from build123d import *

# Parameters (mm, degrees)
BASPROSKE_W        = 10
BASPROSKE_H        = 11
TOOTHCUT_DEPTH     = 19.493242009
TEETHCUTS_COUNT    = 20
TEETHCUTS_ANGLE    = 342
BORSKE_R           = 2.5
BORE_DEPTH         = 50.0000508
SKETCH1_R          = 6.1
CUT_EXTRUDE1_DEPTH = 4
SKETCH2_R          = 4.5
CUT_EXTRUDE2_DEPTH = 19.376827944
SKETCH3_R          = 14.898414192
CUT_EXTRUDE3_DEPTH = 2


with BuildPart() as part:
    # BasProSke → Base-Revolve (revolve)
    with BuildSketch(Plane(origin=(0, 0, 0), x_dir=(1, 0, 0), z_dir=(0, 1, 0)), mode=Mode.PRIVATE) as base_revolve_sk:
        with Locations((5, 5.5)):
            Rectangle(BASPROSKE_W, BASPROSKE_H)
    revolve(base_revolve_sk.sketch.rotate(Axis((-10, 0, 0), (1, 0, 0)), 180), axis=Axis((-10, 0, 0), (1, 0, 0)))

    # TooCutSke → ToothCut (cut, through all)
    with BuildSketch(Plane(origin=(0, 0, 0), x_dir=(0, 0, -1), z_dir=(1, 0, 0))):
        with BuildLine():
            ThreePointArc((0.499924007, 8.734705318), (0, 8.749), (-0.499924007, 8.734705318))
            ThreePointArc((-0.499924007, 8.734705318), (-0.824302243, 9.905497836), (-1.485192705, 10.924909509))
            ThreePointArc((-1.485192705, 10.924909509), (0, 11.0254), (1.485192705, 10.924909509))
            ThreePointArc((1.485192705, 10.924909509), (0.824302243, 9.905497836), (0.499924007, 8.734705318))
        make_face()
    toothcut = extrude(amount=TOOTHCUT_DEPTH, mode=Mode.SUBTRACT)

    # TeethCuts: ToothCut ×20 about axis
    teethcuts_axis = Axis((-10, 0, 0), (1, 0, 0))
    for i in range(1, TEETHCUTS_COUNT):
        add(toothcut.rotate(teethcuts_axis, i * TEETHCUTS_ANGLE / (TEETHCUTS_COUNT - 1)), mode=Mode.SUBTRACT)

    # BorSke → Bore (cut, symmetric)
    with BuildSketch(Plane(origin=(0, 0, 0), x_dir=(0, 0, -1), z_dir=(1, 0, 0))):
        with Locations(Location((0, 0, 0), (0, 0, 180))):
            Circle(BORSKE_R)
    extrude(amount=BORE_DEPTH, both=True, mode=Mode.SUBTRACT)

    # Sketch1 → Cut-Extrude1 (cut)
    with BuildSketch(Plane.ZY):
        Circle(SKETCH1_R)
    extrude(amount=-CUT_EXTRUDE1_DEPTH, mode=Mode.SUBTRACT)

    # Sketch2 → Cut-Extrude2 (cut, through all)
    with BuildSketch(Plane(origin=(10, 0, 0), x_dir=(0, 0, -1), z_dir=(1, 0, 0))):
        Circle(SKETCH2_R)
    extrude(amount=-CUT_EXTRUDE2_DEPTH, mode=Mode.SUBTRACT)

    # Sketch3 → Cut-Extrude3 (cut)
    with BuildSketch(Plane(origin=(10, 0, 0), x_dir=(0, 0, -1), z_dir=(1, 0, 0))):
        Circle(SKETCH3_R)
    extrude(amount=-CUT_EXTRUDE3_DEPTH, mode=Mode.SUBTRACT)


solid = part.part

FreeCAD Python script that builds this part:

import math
import FreeCAD as App
import Part
import Sketcher

V = App.Vector
Q = App.Units.Quantity

doc = App.newDocument("Part")
body = doc.addObject("PartDesign::Body", "Body")

sketch1 = doc.addObject("Sketcher::SketchObject", "Sketch")
body.addObject(sketch1)
sketch1.AttachmentSupport = (doc.XZ_Plane, [""])
sketch1.MapMode = "FlatFace"
sketch1.addGeometry(Part.LineSegment(V(0, -11, 0), V(0, 0, 0)), False)
sketch1.addGeometry(Part.LineSegment(V(0, 0, 0), V(10, 0, 0)), False)
sketch1.addGeometry(Part.LineSegment(V(10, 0, 0), V(10, -11, 0)), False)
sketch1.addGeometry(Part.LineSegment(V(10, -11, 0), V(0, -11, 0)), False)
sketch1.addConstraint(Sketcher.Constraint("Coincident", 0, 2, 1, 1))
sketch1.addConstraint(Sketcher.Constraint("Coincident", 1, 2, 2, 1))
sketch1.addConstraint(Sketcher.Constraint("Coincident", 2, 2, 3, 1))
sketch1.addConstraint(Sketcher.Constraint("Coincident", 3, 2, 0, 1))
sketch1.addConstraint(Sketcher.Constraint("Vertical", 0))
sketch1.addConstraint(Sketcher.Constraint("Horizontal", 1))
sketch1.addConstraint(Sketcher.Constraint("Vertical", 2))
sketch1.addConstraint(Sketcher.Constraint("Horizontal", 3))
sketch1.addConstraint(Sketcher.Constraint("Coincident", 0, 2, -1, 1))
sketch1.addConstraint(Sketcher.Constraint("DistanceX", 1, 1, 1, 2, Q("10 mm")))
sketch1.addConstraint(Sketcher.Constraint("DistanceY", 0, 1, 0, 2, Q("11 mm")))
revolution = doc.addObject("PartDesign::Revolution", "Revolution")
body.addObject(revolution)
revolution.Profile = sketch1
revolution.ReferenceAxis = (sketch1, ["H_Axis"])
revolution.Angle = 360

sketch2 = doc.addObject("Sketcher::SketchObject", "Sketch001")
body.addObject(sketch2)
sketch2.AttachmentSupport = (doc.YZ_Plane, [""])
sketch2.MapMode = "FlatFace"
sketch2.addGeometry(Part.ArcOfCircle(Part.Circle(V(0, 0, 0), V(0, 0, 1), 8.749), math.radians(-3.275705), math.radians(3.275705)), False)
sketch2.addGeometry(Part.ArcOfCircle(Part.Circle(V(8.264487, -4.47219, 0), V(0, 0, 1), 4), math.radians(48.309566), math.radians(83.249005)), False)
sketch2.addGeometry(Part.ArcOfCircle(Part.Circle(V(0, 0, 0), V(0, 0, 1), 11.0254), math.radians(-7.741647), math.radians(7.741647)), False)
sketch2.addGeometry(Part.ArcOfCircle(Part.Circle(V(8.264487, 4.47219, 0), V(0, 0, 1), 4), math.radians(-83.249005), math.radians(-48.309566)), False)
sketch2.addConstraint(Sketcher.Constraint("Coincident", 0, 1, 1, 2))
sketch2.addConstraint(Sketcher.Constraint("Coincident", 1, 1, 2, 1))
sketch2.addConstraint(Sketcher.Constraint("Coincident", 2, 2, 3, 2))
sketch2.addConstraint(Sketcher.Constraint("Coincident", 3, 1, 0, 2))
sketch2.addConstraint(Sketcher.Constraint("Coincident", 0, 3, -1, 1))
sketch2.addConstraint(Sketcher.Constraint("Coincident", 2, 3, -1, 1))
sketch2.addConstraint(Sketcher.Constraint("Equal", 1, 3))
sketch2.addConstraint(Sketcher.Constraint("Symmetric", 1, 3, 3, 3, -1))
sketch2.addConstraint(Sketcher.Constraint("Radius", 1, Q("4 mm")))
sketch2.addConstraint(Sketcher.Constraint("Radius", 0, Q("8.749 mm")))
sketch2.addConstraint(Sketcher.Constraint("Radius", 2, Q("11.0254 mm")))
sketch2.addConstraint(Sketcher.Constraint("DistanceY", 1, 3, -1, 1, Q("4.47219 mm")))
sketch2.addConstraint(Sketcher.Constraint("DistanceX", -1, 1, 1, 1, Q("10.92491 mm")))
pocket1 = doc.addObject("PartDesign::Pocket", "Pocket")
body.addObject(pocket1)
pocket1.Profile = sketch2
pocket1.Type = "ThroughAll"
pocket1.Reversed = True
doc.recompute()

polarpattern = doc.addObject("PartDesign::PolarPattern", "PolarPattern")
body.addObject(polarpattern)
polarpattern.Originals = [pocket1]
polarpattern.Axis = (doc.X_Axis, [""])
polarpattern.Angle = 360
polarpattern.Occurrences = 20
body.Tip = polarpattern

sketch3 = doc.addObject("Sketcher::SketchObject", "Sketch002")
body.addObject(sketch3)
sketch3.AttachmentSupport = (doc.YZ_Plane, [""])
sketch3.MapMode = "FlatFace"
sketch3.addGeometry(Part.Circle(V(0, 0, 0), V(0, 0, 1), 2.5), False)
sketch3.addConstraint(Sketcher.Constraint("Coincident", 0, 3, -1, 1))
sketch3.addConstraint(Sketcher.Constraint("Diameter", 0, Q("5 mm")))
pocket2 = doc.addObject("PartDesign::Pocket", "Pocket001")
body.addObject(pocket2)
pocket2.Profile = sketch3
pocket2.Length = 100.000102
pocket2.Midplane = True

sketch4 = doc.addObject("Sketcher::SketchObject", "Sketch003")
body.addObject(sketch4)
sketch4.AttachmentSupport = (doc.YZ_Plane, [""])
sketch4.MapMode = "FlatFace"
sketch4.addGeometry(Part.Circle(V(0, 0, 0), V(0, 0, 1), 6.1), False)
sketch4.addConstraint(Sketcher.Constraint("Coincident", 0, 3, -1, 1))
sketch4.addConstraint(Sketcher.Constraint("Diameter", 0, Q("12.2 mm")))
pocket3 = doc.addObject("PartDesign::Pocket", "Pocket002")
body.addObject(pocket3)
pocket3.Profile = sketch4
pocket3.Length = 4
pocket3.Reversed = True

sketch5 = doc.addObject("Sketcher::SketchObject", "Sketch004")
body.addObject(sketch5)
sketch5.AttachmentSupport = (doc.YZ_Plane, [""])
sketch5.MapMode = "FlatFace"
sketch5.AttachmentOffset = App.Placement(V(0, 0, 10), App.Rotation())
sketch5.addGeometry(Part.Circle(V(0, 0, 0), V(0, 0, 1), 4.5), False)
sketch5.addConstraint(Sketcher.Constraint("Coincident", 0, 3, -1, 1))
sketch5.addConstraint(Sketcher.Constraint("Diameter", 0, Q("9 mm")))
pocket4 = doc.addObject("PartDesign::Pocket", "Pocket003")
body.addObject(pocket4)
pocket4.Profile = sketch5
pocket4.Type = "ThroughAll"

sketch6 = doc.addObject("Sketcher::SketchObject", "Sketch005")
body.addObject(sketch6)
sketch6.AttachmentSupport = (doc.YZ_Plane, [""])
sketch6.MapMode = "FlatFace"
sketch6.AttachmentOffset = App.Placement(V(0, 0, 10), App.Rotation())
sketch6.addGeometry(Part.Circle(V(0, 0, 0), V(0, 0, 1), 14.898414), False)
sketch6.addConstraint(Sketcher.Constraint("Coincident", 0, 3, -1, 1))
sketch6.addConstraint(Sketcher.Constraint("Diameter", 0, Q("29.796828 mm")))
pocket5 = doc.addObject("PartDesign::Pocket", "Pocket004")
body.addObject(pocket5)
pocket5.Profile = sketch6
pocket5.Length = 2

doc.recompute()
